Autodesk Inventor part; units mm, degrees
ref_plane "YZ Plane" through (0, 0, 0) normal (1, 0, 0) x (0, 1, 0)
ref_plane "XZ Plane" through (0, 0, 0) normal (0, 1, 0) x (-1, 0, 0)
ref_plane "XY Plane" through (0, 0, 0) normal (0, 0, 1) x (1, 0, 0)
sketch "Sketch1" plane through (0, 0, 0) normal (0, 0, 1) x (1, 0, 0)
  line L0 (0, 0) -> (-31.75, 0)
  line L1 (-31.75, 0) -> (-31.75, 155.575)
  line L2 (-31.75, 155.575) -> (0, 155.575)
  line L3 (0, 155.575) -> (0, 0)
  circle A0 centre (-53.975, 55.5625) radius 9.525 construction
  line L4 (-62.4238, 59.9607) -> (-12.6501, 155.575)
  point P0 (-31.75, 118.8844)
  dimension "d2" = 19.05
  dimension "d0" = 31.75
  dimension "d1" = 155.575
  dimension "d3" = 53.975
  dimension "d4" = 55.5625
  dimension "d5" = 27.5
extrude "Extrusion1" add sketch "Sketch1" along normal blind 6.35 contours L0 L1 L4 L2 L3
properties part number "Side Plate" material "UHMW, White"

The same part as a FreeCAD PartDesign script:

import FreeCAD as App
import Part
import Sketcher

V = App.Vector
Q = App.Units.Quantity


def add_polygon(sketch, points):
    """Adds a closed chain of lines whose ends are joined by coincident constraints."""
    first, n = sketch.GeometryCount, len(points)
    for a, b in zip(points, points[1:] + points[:1]):
        sketch.addGeometry(Part.LineSegment(App.Vector(*a, 0), App.Vector(*b, 0)), False)
    for i in range(n):
        sketch.addConstraint(Sketcher.Constraint("Coincident", first + i, 2, first + (i + 1) % n, 1))

doc = App.newDocument("Part")
body = doc.addObject("PartDesign::Body", "Body")

sketch1 = body.newObject("Sketcher::SketchObject", "Sketch")
sketch1.AttachmentSupport = (doc.getObject("XY_Plane"), [""])
sketch1.MapMode = "FlatFace"
add_polygon(sketch1, [(-31.75, 0), (0, 0), (0, 155.575), (-12.6501, 155.575), (-31.75, 118.884467)])
sketch1.addConstraint(Sketcher.Constraint("Horizontal", 0))
sketch1.addConstraint(Sketcher.Constraint("Vertical", 1))
sketch1.addConstraint(Sketcher.Constraint("Horizontal", 2))
sketch1.addConstraint(Sketcher.Constraint("Vertical", 4))
sketch1.addConstraint(Sketcher.Constraint("Coincident", 0, 2, -1, 1))
sketch1.addConstraint(Sketcher.Constraint("DistanceX", 0, 1, 0, 2, Q("1.25 in")))
sketch1.addConstraint(Sketcher.Constraint("DistanceY", 1, 1, 1, 2, Q("6.125 in")))
sketch1.addConstraint(Sketcher.Constraint("Angle", 3, Q("-117.5 deg")))
sketch1.addConstraint(Sketcher.Constraint("DistanceY", 4, 2, 4, 1, Q("4.6805 in")))
pad1 = body.newObject("PartDesign::Pad", "Pad")
pad1.Profile = sketch1
pad1.Length = Q("0.25 in")

doc.recompute()
